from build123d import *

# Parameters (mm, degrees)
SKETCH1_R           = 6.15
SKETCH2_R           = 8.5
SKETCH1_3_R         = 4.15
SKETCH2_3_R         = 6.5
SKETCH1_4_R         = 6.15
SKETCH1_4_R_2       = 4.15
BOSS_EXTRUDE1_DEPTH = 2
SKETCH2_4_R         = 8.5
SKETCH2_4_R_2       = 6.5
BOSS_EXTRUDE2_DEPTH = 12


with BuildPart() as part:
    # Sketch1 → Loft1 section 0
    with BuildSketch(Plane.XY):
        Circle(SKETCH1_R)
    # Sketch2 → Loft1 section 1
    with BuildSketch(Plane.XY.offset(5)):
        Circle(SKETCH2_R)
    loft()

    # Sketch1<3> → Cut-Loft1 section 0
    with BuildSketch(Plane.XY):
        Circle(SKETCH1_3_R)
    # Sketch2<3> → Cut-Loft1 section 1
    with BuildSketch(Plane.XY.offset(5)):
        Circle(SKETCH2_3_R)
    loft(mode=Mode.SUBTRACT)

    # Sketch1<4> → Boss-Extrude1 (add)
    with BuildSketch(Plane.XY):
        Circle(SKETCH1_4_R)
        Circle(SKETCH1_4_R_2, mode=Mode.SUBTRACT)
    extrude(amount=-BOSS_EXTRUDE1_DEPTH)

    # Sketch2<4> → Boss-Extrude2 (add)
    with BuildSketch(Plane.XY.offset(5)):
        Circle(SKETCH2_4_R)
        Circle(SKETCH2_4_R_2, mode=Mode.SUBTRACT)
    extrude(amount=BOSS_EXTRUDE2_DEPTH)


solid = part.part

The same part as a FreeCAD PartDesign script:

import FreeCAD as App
import Part
import Sketcher

V = App.Vector
Q = App.Units.Quantity

doc = App.newDocument("Part")
body = doc.addObject("PartDesign::Body", "Body")

# Sketch on XY plane
sketch1 = doc.addObject("Sketcher::SketchObject", "Sketch")
body.addObject(sketch1)
sketch1.AttachmentSupport = (doc.XY_Plane, [""])
sketch1.MapMode = "FlatFace"
sketch1.addGeometry(Part.Circle(V(0, 0, 0), V(0, 0, 1), 6), False)
sketch1.addConstraint([
    Sketcher.Constraint("Coincident", 0, 3, -1, 1),
    Sketcher.Constraint("Diameter", 0, Q("12.3 mm")),
])

# Sketch on XY plane
sketch2 = doc.addObject("Sketcher::SketchObject", "Sketch001")
body.addObject(sketch2)
sketch2.AttachmentSupport = (doc.XY_Plane, [""])
sketch2.MapMode = "FlatFace"
sketch2.AttachmentOffset = App.Placement(V(0, 0, 5), App.Rotation())
sketch2.addGeometry(Part.Circle(V(0, 0, 0), V(0, 0, 1), 8), False)
sketch2.addConstraint([
    Sketcher.Constraint("Coincident", 0, 3, -1, 1),
    Sketcher.Constraint("Diameter", 0, Q("17 mm")),
])

additiveloft = doc.addObject("PartDesign::AdditiveLoft", "AdditiveLoft")
body.addObject(additiveloft)
additiveloft.Profile = sketch1
additiveloft.Sections = [sketch2]

# Sketch on XY plane
sketch3 = doc.addObject("Sketcher::SketchObject", "Sketch002")
body.addObject(sketch3)
sketch3.AttachmentSupport = (doc.XY_Plane, [""])
sketch3.MapMode = "FlatFace"
sketch3.addGeometry(Part.Circle(V(0, 0, 0), V(0, 0, 1), 4.2), False)
sketch3.addConstraint([
    Sketcher.Constraint("Coincident", 0, 3, -1, 1),
    Sketcher.Constraint("Diameter", 0, Q("8.3 mm")),
])

# Sketch on XY plane
sketch4 = doc.addObject("Sketcher::SketchObject", "Sketch003")
body.addObject(sketch4)
sketch4.AttachmentSupport = (doc.XY_Plane, [""])
sketch4.MapMode = "FlatFace"
sketch4.AttachmentOffset = App.Placement(V(0, 0, 5), App.Rotation())
sketch4.addGeometry(Part.Circle(V(0, 0, 0), V(0, 0, 1), 6), False)
sketch4.addConstraint([
    Sketcher.Constraint("Coincident", 0, 3, -1, 1),
    Sketcher.Constraint("Diameter", 0, Q("13 mm")),
])

subtractiveloft = doc.addObject("PartDesign::SubtractiveLoft", "SubtractiveLoft")
body.addObject(subtractiveloft)
subtractiveloft.Profile = sketch3
subtractiveloft.Sections = [sketch4]

# Sketch on XY plane
sketch5 = doc.addObject("Sketcher::SketchObject", "Sketch004")
body.addObject(sketch5)
sketch5.AttachmentSupport = (doc.XY_Plane, [""])
sketch5.MapMode = "FlatFace"
sketch5.addGeometry([
    Part.Circle(V(0, 0, 0), V(0, 0, 1), 6.2),
    Part.Circle(V(0, 0, 0), V(0, 0, 1), 4.2),
], False)
sketch5.addConstraint([
    Sketcher.Constraint("Coincident", 0, 3, -1, 1),
    Sketcher.Constraint("Coincident", 1, 3, -1, 1),
    Sketcher.Constraint("Diameter", 0, Q("12.3 mm")),
    Sketcher.Constraint("Diameter", 1, Q("8.3 mm")),
])
pad1 = doc.addObject("PartDesign::Pad", "Pad")
body.addObject(pad1)
pad1.Profile = sketch5
pad1.Length = 2
pad1.Reversed = True

# Sketch on XY plane
sketch6 = doc.addObject("Sketcher::SketchObject", "Sketch005")
body.addObject(sketch6)
sketch6.AttachmentSupport = (doc.XY_Plane, [""])
sketch6.MapMode = "FlatFace"
sketch6.AttachmentOffset = App.Placement(V(0, 0, 5), App.Rotation())
sketch6.addGeometry([
    Part.Circle(V(0, 0, 0), V(0, 0, 1), 8),
    Part.Circle(V(0, 0, 0), V(0, 0, 1), 6),
], False)
sketch6.addConstraint([
    Sketcher.Constraint("Coincident", 0, 3, -1, 1),
    Sketcher.Constraint("Coincident", 1, 3, -1, 1),
    Sketcher.Constraint("Diameter", 0, Q("17 mm")),
    Sketcher.Constraint("Diameter", 1, Q("13 mm")),
])
pad2 = doc.addObject("PartDesign::Pad", "Pad001")
body.addObject(pad2)
pad2.Profile = sketch6
pad2.Length = 12

doc.recompute()
